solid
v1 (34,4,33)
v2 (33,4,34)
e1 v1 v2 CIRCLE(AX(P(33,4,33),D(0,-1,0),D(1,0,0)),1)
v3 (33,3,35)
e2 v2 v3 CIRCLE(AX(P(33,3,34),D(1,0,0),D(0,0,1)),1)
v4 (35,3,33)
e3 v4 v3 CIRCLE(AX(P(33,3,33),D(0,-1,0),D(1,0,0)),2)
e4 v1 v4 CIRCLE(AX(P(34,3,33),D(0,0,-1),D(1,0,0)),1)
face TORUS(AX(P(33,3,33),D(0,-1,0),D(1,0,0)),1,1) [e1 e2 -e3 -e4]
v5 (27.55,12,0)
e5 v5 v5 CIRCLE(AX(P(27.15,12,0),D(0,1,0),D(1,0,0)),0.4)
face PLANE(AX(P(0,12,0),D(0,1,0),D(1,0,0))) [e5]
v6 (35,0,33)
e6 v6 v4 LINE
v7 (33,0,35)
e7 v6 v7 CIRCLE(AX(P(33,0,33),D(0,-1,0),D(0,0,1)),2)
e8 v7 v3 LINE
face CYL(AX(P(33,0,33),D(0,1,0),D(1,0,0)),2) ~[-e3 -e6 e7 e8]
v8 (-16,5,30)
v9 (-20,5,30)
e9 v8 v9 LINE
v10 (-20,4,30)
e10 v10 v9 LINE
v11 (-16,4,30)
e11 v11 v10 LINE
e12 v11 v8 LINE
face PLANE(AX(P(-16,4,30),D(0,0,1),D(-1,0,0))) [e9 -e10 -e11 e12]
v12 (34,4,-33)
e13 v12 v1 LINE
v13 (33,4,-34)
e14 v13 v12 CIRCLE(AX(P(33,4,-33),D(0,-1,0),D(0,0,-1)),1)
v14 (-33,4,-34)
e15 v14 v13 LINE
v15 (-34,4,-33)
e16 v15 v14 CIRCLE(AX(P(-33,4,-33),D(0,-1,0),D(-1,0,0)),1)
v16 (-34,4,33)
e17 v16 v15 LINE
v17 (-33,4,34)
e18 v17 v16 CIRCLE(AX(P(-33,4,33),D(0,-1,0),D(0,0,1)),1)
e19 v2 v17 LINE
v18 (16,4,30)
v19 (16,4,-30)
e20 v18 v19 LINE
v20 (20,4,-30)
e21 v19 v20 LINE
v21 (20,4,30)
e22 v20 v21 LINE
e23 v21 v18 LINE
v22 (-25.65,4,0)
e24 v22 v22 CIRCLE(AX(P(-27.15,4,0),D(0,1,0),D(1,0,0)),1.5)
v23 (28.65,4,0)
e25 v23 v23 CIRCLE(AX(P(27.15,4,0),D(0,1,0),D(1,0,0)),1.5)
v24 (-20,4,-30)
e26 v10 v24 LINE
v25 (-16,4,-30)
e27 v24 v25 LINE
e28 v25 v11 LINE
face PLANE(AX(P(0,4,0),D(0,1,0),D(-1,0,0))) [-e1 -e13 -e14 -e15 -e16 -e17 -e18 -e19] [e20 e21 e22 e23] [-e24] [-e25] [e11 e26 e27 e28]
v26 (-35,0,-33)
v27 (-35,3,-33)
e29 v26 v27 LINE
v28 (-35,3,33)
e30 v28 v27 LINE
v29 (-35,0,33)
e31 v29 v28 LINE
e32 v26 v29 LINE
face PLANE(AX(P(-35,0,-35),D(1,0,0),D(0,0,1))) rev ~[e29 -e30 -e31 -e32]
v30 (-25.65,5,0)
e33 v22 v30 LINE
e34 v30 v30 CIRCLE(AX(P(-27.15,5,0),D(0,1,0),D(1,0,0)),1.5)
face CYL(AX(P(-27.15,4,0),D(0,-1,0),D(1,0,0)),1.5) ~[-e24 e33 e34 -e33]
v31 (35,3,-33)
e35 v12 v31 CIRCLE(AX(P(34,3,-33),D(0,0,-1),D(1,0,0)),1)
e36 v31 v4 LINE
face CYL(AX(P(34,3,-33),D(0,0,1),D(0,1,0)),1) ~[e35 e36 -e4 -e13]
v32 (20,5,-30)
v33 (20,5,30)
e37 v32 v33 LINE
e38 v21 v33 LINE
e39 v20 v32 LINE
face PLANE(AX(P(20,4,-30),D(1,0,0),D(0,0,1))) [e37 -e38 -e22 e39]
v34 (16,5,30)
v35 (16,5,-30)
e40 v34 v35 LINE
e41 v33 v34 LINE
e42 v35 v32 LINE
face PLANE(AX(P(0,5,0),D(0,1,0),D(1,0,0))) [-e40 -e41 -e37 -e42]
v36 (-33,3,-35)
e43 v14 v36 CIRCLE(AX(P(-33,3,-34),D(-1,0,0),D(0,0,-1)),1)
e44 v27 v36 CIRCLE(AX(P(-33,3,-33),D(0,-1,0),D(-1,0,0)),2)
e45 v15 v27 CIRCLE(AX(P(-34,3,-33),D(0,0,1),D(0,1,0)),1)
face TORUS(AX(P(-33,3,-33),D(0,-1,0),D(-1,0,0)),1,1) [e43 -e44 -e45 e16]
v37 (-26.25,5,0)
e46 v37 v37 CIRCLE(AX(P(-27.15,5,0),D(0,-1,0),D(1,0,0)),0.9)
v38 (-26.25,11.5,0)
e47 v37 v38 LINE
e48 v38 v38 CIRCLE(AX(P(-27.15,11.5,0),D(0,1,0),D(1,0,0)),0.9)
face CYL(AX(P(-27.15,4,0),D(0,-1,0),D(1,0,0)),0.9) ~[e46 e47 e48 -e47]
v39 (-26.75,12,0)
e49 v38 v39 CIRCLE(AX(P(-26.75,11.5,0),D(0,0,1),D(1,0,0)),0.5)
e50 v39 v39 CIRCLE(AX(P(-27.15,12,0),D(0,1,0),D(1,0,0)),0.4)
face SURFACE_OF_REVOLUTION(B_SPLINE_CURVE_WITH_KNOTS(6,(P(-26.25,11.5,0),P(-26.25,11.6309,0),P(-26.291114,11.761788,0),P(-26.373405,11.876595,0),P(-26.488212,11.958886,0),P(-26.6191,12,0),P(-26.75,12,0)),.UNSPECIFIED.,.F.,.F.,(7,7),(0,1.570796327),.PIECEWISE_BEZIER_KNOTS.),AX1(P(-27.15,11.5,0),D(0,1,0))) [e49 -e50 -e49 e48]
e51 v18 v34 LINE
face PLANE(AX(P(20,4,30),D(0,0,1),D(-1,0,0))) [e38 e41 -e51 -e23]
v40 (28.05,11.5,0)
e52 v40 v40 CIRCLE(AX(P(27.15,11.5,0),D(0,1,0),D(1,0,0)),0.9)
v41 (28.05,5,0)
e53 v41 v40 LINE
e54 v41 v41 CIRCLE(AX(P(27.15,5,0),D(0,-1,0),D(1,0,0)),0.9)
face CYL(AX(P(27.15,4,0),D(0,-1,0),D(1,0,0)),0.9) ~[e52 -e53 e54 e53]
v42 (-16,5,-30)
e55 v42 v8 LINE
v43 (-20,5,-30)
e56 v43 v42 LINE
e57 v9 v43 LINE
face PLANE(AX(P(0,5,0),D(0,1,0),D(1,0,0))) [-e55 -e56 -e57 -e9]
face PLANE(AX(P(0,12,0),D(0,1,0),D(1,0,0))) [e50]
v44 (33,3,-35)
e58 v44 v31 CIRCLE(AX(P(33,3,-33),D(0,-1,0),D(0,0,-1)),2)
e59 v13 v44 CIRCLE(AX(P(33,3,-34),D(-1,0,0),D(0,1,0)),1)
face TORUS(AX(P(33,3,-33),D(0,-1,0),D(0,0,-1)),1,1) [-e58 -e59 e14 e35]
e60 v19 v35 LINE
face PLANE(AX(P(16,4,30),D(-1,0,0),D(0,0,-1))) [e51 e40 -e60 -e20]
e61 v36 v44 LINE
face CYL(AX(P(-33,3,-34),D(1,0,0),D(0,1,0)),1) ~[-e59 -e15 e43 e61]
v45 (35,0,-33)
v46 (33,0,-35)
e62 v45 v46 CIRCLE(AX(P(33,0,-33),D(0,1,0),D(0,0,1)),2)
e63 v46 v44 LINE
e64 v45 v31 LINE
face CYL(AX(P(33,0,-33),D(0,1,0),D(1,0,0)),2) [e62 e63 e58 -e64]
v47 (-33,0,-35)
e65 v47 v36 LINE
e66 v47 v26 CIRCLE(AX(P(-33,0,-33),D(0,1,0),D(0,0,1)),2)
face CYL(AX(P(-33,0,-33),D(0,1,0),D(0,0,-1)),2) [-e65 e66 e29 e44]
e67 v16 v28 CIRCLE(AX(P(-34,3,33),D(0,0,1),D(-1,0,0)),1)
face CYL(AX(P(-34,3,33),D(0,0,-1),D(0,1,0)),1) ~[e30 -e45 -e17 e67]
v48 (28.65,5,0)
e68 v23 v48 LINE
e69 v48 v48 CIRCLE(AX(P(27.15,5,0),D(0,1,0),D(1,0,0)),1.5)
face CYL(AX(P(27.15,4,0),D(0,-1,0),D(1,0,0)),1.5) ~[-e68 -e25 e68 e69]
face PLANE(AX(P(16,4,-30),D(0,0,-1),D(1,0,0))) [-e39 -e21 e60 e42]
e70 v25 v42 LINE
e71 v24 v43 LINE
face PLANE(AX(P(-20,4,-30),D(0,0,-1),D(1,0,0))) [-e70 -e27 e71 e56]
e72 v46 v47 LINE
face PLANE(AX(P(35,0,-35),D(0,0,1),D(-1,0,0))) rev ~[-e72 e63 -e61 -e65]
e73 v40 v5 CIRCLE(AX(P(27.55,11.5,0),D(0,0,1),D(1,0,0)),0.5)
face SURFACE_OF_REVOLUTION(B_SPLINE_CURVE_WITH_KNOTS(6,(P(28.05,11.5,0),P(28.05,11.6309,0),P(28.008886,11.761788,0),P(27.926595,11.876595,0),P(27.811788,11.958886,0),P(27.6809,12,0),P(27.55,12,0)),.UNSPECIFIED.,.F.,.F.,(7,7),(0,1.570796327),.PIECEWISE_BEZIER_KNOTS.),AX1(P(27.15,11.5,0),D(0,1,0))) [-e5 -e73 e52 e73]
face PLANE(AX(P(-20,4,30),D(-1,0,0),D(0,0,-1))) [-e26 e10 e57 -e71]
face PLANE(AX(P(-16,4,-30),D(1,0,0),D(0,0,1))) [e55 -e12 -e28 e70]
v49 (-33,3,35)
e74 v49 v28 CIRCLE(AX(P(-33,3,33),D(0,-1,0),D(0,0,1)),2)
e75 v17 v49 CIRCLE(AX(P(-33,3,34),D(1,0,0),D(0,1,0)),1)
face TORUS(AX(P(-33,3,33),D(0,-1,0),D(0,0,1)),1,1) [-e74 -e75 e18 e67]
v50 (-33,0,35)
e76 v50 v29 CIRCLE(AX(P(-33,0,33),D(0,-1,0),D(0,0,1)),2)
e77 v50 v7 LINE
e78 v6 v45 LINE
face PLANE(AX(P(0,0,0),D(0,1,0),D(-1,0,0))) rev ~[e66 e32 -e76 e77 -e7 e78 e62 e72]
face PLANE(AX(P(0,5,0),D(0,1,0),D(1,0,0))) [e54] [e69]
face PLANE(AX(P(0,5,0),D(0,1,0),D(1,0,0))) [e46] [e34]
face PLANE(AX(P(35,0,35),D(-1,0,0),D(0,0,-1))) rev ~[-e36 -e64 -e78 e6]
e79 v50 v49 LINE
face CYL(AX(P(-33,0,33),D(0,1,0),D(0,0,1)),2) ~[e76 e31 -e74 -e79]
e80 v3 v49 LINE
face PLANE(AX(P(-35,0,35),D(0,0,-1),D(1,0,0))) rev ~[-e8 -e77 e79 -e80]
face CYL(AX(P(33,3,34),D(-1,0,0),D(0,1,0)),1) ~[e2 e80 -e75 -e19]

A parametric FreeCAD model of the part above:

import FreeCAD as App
import Part
import Sketcher
from FreeCAD import Vector


def edges_at(feature, points):
    """Names of the edges that pass closest to the given points."""
    edges = feature.Shape.Edges
    near = lambda p: min(range(len(edges)), key=lambda i: edges[i].distToShape(Part.Vertex(*p))[0])
    return sorted({f"Edge{near(p) + 1}" for p in points})

doc = App.newDocument("Part")
body = doc.addObject("PartDesign::Body", "Body")

# Sketch on XZ plane
sketch1 = body.newObject("Sketcher::SketchObject", "Sketch")
sketch1.AttachmentSupport = (doc.getObject("XZ_Plane"), [""])
sketch1.MapMode = "FlatFace"
sketch1.addGeometry([
    Part.LineSegment(Vector(35, 35, 0), Vector(35, -35, 0)),
    Part.LineSegment(Vector(35, -35, 0), Vector(-35, -35, 0)),
    Part.LineSegment(Vector(-35, -35, 0), Vector(-35, 35, 0)),
    Part.LineSegment(Vector(-35, 35, 0), Vector(35, 35, 0)),
], False)
sketch1.addConstraint([
    Sketcher.Constraint("Coincident", 0, 2, 1, 1),
    Sketcher.Constraint("Coincident", 1, 2, 2, 1),
    Sketcher.Constraint("Coincident", 2, 2, 3, 1),
    Sketcher.Constraint("Coincident", 3, 2, 0, 1),
    Sketcher.Constraint("Vertical", 0),
    Sketcher.Constraint("Horizontal", 1),
    Sketcher.Constraint("Vertical", 2),
    Sketcher.Constraint("Horizontal", 3),
    Sketcher.Constraint("Symmetric", 0, 2, 2, 2, -1, 1),
    Sketcher.Constraint("Equal", 3, 0),
    Sketcher.Constraint("DistanceX", 1, 2, 1, 1, 70.0),
])
pad1 = body.newObject("PartDesign::Pad", "Pad")
pad1.Profile = sketch1
pad1.Length = 4
pad1.Reversed = True

# Sketch on XZ plane
sketch2 = body.newObject("Sketcher::SketchObject", "Sketch001")
sketch2.AttachmentSupport = (doc.getObject("XZ_Plane"), [""])
sketch2.MapMode = "FlatFace"
sketch2.AttachmentOffset = App.Placement(Vector(0, 0, -4), App.Rotation())
sketch2.addGeometry([
    Part.Circle(Vector(-27.1, 0, 0), Vector(0, 0, 1), 0.9),
    Part.Circle(Vector(27.1, 0, 0), Vector(0, 0, 1), 0.9),
], False)
sketch2.addConstraint([
    Sketcher.Constraint("Equal", 0, 1),
    Sketcher.Constraint("Symmetric", 0, 3, 1, 3, -1, 1),
    Sketcher.Constraint("PointOnObject", 0, 3, -1),
    Sketcher.Constraint("Diameter", 0, 1.8),
    Sketcher.Constraint("DistanceX", 0, 3, 1, 3, 54.3),
])
pad2 = body.newObject("PartDesign::Pad", "Pad001")
pad2.Profile = sketch2
pad2.Length = 8
pad2.Reversed = True
doc.recompute()

fillet = body.newObject("PartDesign::Fillet", "Fillet")
fillet.Base = (pad2, edges_at(pad2, [
    (35, 2, 35),
    (-35, 2, 35),
    (-35, 2, -35),
    (35, 2, -35),
]))
fillet.Radius = 2
doc.recompute()

fillet2 = body.newObject("PartDesign::Fillet", "Fillet001")
fillet2.Base = (fillet, edges_at(fillet, [(26.25, 12, 0), (-28.05, 12, 0)]))
fillet2.Radius = 0.5

# Sketch on XZ plane
sketch3 = body.newObject("Sketcher::SketchObject", "Sketch002")
sketch3.AttachmentSupport = (doc.getObject("XZ_Plane"), [""])
sketch3.MapMode = "FlatFace"
sketch3.AttachmentOffset = App.Placement(Vector(0, 0, -4), App.Rotation())
sketch3.addGeometry([
    Part.Circle(Vector(27.1, 0, 0), Vector(0, 0, 1), 1.5),  # 0
    Part.Circle(Vector(-27.1, 0, 0), Vector(0, 0, 1), 1.5),  # 1
    Part.LineSegment(Vector(-20, 30, 0), Vector(-16, 30, 0)),  # 2
    Part.LineSegment(Vector(-16, 30, 0), Vector(-16, -30, 0)),  # 3
    Part.LineSegment(Vector(-16, -30, 0), Vector(-20, -30, 0)),  # 4
    Part.LineSegment(Vector(-20, -30, 0), Vector(-20, 30, 0)),  # 5
    Part.LineSegment(Vector(16, 30, 0), Vector(20, 30, 0)),  # 6
    Part.LineSegment(Vector(20, 30, 0), Vector(20, -30, 0)),  # 7
    Part.LineSegment(Vector(20, -30, 0), Vector(16, -30, 0)),  # 8
    Part.LineSegment(Vector(16, -30, 0), Vector(16, 30, 0)),  # 9
], False)
sketch3.addConstraint([
    Sketcher.Constraint("Coincident", 2, 2, 3, 1),
    Sketcher.Constraint("Coincident", 3, 2, 4, 1),
    Sketcher.Constraint("Coincident", 4, 2, 5, 1),
    Sketcher.Constraint("Coincident", 5, 2, 2, 1),
    Sketcher.Constraint("Coincident", 6, 2, 7, 1),
    Sketcher.Constraint("Coincident", 7, 2, 8, 1),
    Sketcher.Constraint("Coincident", 8, 2, 9, 1),
    Sketcher.Constraint("Coincident", 9, 2, 6, 1),
    Sketcher.Constraint("Horizontal", 2),
    Sketcher.Constraint("Vertical", 3),
    Sketcher.Constraint("Horizontal", 4),
    Sketcher.Constraint("Vertical", 5),
    Sketcher.Constraint("Horizontal", 6),
    Sketcher.Constraint("Vertical", 7),
    Sketcher.Constraint("Horizontal", 8),
    Sketcher.Constraint("Vertical", 9),
    Sketcher.Constraint("Equal", 0, 1),
    Sketcher.Constraint("Symmetric", 0, 3, 1, 3, -1, 1),
    Sketcher.Constraint("Symmetric", 4, 2, 6, 2, -1, 1),
    Sketcher.Constraint("Symmetric", 2, 2, 8, 2, -1, 1),
    Sketcher.Constraint("PointOnObject", 0, 3, -1),
    Sketcher.Constraint("Horizontal", 5, 2, 6, 2),
    Sketcher.Constraint("Diameter", 0, 3.0),
    Sketcher.Constraint("DistanceX", 2, 1, 2, 2, 4.0),
    Sketcher.Constraint("DistanceY", 3, 2, 3, 1, 60.0),
    Sketcher.Constraint("DistanceX", 2, 2, -1, 1, 16.0),
    Sketcher.Constraint("DistanceX", 1, 3, 0, 3, 54.3),
])
pad3 = body.newObject("PartDesign::Pad", "Pad002")
pad3.Profile = sketch3
pad3.Length = 1
pad3.Reversed = True
doc.recompute()

fillet3 = body.newObject("PartDesign::Fillet", "Fillet002")
fillet3.Base = (pad3, edges_at(pad3, [
    (34.414, 4, 34.414),
    (35, 4, 0),
    (34.414, 4, -34.414),
    (0, 4, -35),
    (-34.414, 4, -34.414),
    (-35, 4, 0),
    (-34.414, 4, 34.414),
    (0, 4, 35),
]))
fillet3.Radius = 1

doc.recompute()
